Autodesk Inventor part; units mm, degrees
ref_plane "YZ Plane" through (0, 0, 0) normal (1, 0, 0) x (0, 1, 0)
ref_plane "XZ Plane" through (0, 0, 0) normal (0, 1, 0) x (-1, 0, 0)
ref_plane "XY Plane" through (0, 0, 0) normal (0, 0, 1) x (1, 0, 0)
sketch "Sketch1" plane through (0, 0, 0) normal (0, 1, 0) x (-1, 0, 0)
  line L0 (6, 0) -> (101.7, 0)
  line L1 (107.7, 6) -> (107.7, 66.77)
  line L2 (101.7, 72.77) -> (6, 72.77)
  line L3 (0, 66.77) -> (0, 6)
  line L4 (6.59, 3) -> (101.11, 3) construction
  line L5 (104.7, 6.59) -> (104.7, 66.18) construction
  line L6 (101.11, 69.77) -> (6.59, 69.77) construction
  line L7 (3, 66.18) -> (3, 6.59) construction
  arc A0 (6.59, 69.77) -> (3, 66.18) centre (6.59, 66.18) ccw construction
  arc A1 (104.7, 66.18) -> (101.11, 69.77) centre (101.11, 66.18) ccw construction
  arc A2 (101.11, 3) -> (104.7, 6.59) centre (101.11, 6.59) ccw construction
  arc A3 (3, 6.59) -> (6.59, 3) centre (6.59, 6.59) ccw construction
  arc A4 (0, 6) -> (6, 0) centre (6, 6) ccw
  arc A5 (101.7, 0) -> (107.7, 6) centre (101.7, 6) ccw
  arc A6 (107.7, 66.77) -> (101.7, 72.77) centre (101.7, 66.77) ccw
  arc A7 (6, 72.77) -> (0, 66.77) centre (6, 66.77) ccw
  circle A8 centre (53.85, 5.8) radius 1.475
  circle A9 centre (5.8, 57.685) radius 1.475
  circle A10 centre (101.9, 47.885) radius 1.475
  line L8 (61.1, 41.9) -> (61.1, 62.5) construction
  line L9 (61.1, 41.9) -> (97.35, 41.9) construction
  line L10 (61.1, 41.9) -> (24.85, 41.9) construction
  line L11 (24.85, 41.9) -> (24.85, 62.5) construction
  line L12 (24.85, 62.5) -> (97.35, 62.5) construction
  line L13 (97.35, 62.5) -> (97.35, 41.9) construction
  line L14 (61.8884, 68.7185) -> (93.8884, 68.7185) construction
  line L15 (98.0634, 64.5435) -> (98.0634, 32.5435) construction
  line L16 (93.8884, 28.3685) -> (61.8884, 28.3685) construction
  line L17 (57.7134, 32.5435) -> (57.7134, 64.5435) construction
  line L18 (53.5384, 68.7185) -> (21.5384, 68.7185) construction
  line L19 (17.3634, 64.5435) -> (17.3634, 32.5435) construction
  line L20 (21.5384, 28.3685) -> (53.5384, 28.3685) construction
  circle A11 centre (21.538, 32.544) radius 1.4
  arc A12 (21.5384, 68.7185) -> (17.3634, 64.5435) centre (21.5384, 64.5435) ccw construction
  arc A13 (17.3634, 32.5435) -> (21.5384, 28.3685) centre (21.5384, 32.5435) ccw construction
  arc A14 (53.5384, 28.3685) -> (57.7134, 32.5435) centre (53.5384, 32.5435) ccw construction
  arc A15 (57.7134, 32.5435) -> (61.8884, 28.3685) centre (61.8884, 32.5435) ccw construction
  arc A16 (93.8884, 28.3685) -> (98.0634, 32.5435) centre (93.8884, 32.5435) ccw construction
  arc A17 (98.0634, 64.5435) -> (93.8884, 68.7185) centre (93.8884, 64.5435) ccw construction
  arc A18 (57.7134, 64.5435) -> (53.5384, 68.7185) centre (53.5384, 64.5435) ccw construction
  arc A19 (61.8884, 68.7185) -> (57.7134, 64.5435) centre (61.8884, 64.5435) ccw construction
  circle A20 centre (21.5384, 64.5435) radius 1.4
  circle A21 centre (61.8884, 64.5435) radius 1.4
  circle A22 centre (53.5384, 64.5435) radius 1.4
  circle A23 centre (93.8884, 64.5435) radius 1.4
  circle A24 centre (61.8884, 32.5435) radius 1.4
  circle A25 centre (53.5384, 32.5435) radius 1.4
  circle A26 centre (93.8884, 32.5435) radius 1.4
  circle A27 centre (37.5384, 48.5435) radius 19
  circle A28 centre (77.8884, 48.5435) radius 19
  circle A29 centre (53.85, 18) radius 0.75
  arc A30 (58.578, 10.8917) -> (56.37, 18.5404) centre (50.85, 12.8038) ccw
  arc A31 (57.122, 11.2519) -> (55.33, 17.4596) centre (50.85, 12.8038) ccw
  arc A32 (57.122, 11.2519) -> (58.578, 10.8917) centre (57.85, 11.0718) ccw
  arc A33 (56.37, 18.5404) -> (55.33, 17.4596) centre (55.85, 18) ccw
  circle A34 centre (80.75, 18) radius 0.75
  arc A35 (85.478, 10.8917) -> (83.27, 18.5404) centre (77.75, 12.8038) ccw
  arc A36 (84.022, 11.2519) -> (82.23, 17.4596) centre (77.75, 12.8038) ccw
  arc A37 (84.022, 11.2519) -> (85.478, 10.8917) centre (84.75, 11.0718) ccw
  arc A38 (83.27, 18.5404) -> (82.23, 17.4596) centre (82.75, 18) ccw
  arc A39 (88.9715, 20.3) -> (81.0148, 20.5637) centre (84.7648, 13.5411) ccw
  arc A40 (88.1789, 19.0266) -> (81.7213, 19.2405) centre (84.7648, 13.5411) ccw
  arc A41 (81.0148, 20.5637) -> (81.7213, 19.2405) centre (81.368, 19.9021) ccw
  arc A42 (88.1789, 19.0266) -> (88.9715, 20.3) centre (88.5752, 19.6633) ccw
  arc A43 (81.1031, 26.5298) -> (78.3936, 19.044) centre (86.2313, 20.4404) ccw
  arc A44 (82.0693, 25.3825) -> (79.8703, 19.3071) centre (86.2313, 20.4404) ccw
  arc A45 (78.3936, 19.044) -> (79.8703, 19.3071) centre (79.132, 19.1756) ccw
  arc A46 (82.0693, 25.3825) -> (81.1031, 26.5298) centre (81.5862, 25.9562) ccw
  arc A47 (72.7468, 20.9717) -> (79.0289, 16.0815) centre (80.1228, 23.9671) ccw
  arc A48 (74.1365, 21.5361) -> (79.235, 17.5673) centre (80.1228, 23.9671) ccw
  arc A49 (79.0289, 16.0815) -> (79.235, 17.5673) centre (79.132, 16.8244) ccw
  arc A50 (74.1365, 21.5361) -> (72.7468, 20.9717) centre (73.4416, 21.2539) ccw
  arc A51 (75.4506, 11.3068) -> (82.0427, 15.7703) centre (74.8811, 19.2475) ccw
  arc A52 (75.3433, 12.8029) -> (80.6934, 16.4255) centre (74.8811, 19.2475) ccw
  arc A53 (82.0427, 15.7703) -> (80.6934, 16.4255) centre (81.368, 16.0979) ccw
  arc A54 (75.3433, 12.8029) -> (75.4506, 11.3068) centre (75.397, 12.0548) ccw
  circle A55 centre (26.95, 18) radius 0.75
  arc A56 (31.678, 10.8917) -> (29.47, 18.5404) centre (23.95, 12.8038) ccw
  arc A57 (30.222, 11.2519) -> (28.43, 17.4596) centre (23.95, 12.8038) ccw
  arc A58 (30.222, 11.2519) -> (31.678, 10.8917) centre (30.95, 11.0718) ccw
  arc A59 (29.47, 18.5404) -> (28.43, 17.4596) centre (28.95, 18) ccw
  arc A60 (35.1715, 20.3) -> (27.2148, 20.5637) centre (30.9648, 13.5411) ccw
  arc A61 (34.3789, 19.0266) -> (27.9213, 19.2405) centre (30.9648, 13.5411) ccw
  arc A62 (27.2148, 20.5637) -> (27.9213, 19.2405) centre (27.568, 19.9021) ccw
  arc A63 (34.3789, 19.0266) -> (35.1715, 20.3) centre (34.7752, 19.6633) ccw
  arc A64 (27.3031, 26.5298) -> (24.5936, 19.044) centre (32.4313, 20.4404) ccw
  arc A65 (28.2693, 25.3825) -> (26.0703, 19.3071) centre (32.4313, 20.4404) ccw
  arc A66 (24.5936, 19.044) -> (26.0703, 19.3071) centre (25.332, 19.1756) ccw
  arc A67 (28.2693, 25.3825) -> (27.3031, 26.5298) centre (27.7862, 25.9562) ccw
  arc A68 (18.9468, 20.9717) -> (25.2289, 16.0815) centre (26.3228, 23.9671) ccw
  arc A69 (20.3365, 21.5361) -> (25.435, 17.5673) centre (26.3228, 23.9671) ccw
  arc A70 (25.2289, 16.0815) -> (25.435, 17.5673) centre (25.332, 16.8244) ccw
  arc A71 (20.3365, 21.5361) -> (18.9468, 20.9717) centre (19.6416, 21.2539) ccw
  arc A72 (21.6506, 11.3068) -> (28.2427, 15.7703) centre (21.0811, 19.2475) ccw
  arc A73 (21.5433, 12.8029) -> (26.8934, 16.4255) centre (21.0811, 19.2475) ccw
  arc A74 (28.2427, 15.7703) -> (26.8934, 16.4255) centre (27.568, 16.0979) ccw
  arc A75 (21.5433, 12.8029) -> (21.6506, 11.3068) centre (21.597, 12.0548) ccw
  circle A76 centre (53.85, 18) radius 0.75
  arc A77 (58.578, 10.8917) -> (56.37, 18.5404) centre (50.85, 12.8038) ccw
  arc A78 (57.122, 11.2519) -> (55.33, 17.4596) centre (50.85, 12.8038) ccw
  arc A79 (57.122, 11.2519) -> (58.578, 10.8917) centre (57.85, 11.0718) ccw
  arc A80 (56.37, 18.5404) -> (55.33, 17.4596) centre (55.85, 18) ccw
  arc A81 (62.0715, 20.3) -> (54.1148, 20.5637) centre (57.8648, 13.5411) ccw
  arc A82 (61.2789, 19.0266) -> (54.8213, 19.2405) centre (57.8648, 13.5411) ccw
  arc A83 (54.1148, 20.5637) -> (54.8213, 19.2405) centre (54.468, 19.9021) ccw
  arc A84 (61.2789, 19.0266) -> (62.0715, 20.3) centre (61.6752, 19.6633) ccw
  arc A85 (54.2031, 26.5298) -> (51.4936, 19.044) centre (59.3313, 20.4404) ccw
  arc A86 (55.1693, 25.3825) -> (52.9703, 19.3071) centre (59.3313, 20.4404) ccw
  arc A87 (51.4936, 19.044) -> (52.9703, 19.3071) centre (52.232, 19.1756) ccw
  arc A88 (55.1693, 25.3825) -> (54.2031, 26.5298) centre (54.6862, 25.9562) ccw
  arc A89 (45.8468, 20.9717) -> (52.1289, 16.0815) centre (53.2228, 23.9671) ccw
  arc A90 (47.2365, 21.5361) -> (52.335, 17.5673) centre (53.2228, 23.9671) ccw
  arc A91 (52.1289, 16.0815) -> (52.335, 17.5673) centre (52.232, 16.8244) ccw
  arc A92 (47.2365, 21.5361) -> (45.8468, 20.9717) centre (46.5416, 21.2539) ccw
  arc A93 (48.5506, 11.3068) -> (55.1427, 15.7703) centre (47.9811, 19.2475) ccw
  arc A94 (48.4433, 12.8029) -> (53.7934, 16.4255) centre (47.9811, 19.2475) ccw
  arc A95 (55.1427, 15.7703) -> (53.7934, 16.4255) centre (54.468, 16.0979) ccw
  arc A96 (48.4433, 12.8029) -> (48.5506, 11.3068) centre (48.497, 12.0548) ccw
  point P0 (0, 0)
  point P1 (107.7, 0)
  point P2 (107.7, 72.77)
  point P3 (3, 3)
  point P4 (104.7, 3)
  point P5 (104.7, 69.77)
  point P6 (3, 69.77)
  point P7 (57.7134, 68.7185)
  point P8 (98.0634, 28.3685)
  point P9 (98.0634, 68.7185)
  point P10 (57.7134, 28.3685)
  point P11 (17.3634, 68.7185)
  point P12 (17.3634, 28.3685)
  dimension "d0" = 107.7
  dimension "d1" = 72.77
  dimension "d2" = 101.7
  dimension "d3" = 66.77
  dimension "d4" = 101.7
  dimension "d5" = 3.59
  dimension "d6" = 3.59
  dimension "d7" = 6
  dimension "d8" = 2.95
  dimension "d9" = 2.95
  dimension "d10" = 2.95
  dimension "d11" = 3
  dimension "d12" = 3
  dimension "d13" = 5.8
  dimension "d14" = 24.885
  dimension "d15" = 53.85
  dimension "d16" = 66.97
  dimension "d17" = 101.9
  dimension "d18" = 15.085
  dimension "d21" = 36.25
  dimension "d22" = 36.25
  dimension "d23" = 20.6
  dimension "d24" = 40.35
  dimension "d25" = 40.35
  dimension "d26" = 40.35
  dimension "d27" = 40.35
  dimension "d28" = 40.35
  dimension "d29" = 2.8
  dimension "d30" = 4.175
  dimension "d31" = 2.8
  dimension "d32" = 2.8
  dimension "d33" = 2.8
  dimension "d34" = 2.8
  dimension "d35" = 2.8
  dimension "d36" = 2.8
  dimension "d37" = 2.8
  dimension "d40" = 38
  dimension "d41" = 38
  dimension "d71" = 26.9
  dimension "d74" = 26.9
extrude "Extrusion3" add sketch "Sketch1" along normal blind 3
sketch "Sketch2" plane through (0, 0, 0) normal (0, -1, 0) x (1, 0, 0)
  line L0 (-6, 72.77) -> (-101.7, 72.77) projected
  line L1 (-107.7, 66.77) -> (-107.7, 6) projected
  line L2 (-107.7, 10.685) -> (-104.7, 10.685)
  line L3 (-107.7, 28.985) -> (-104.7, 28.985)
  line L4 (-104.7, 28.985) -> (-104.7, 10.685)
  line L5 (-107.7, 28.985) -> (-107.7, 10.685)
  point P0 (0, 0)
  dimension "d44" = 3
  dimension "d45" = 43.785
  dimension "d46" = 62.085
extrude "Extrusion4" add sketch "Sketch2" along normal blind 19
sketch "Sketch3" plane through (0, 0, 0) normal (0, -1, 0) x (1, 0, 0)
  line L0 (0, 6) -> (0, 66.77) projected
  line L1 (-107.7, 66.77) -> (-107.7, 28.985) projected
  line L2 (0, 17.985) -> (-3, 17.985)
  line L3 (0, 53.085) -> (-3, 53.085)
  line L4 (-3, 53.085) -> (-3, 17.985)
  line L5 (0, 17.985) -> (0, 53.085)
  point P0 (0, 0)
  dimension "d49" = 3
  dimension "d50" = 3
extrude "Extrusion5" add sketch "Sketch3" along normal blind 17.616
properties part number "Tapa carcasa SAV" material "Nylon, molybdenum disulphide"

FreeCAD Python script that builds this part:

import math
import FreeCAD as App
import Part
import Sketcher

V = App.Vector


def add_polygon(sketch, points):
    """Adds a closed chain of lines whose ends are joined by coincident constraints."""
    first, n = sketch.GeometryCount, len(points)
    for a, b in zip(points, points[1:] + points[:1]):
        sketch.addGeometry(Part.LineSegment(App.Vector(*a, 0), App.Vector(*b, 0)), False)
    for i in range(n):
        sketch.addConstraint(Sketcher.Constraint("Coincident", first + i, 2, first + (i + 1) % n, 1))

doc = App.newDocument("Part")
body = doc.addObject("PartDesign::Body", "Body")

# Sketch on XZ plane
sketch1 = body.newObject("Sketcher::SketchObject", "Sketch")
sketch1.AttachmentSupport = (doc.getObject("XZ_Plane"), [""])
sketch1.MapMode = "FlatFace"
sketch1.addGeometry(Part.ArcOfCircle(Part.Circle(V(-6, 6, 0), V(0, 0, 1), 6), math.radians(-90), math.radians(0)), False)
sketch1.addGeometry(Part.LineSegment(V(-6, 0, 0), V(-101.7, 0, 0)), False)
sketch1.addGeometry(Part.ArcOfCircle(Part.Circle(V(-101.7, 6, 0), V(0, 0, 1), 6), math.radians(180), math.radians(270)), False)
sketch1.addGeometry(Part.LineSegment(V(-107.7, 6, 0), V(-107.7, 66.8, 0)), False)
sketch1.addGeometry(Part.ArcOfCircle(Part.Circle(V(-101.7, 66.8, 0), V(0, 0, 1), 6), math.radians(90), math.radians(180)), False)
sketch1.addGeometry(Part.LineSegment(V(-101.7, 72.8, 0), V(-6, 72.8, 0)), False)
sketch1.addGeometry(Part.ArcOfCircle(Part.Circle(V(-6, 66.8, 0), V(0, 0, 1), 6), math.radians(0), math.radians(90)), False)
sketch1.addGeometry(Part.LineSegment(V(0, 66.8, 0), V(0, 6, 0)), False)
sketch1.addGeometry(Part.ArcOfCircle(Part.Circle(V(-21.1, 19.2, 0), V(0, 0, 1), 8), math.radians(-154), math.radians(-94)), False)
sketch1.addGeometry(Part.ArcOfCircle(Part.Circle(V(-21.6, 12.1, 0), V(0, 0, 1), 0.8), math.radians(-94), math.radians(86)), False)
sketch1.addGeometry(Part.ArcOfCircle(Part.Circle(V(-21.1, 19.2, 0), V(0, 0, 1), 6.5), math.radians(-154), math.radians(-94)), False)
sketch1.addGeometry(Part.ArcOfCircle(Part.Circle(V(-27.6, 16.1, 0), V(0, 0, 1), 0.8), math.radians(26), math.radians(206)), False)
sketch1.addGeometry(Part.Circle(V(-53.9, 5.8, 0), V(0, 0, 1), 1.5), False)
sketch1.addGeometry(Part.ArcOfCircle(Part.Circle(V(-23.9, 12.8, 0), V(0, 0, 1), 8), math.radians(134), math.radians(194)), False)
sketch1.addGeometry(Part.ArcOfCircle(Part.Circle(V(-30.9, 11.1, 0), V(0, 0, 1), 0.7), math.radians(-166), math.radians(14)), False)
sketch1.addGeometry(Part.ArcOfCircle(Part.Circle(V(-23.9, 12.8, 0), V(0, 0, 1), 6.5), math.radians(134), math.radians(194)), False)
sketch1.addGeometry(Part.ArcOfCircle(Part.Circle(V(-28.9, 18, 0), V(0, 0, 1), 0.7), math.radians(-46), math.radians(134)), False)
sketch1.addGeometry(Part.Circle(V(-26.9, 18, 0), V(0, 0, 1), 0.8), False)
sketch1.addGeometry(Part.ArcOfCircle(Part.Circle(V(-48, 19.2, 0), V(0, 0, 1), 8), math.radians(-154), math.radians(-94)), False)
sketch1.addGeometry(Part.ArcOfCircle(Part.Circle(V(-48.5, 12.1, 0), V(0, 0, 1), 0.8), math.radians(-94), math.radians(86)), False)
sketch1.addGeometry(Part.ArcOfCircle(Part.Circle(V(-48, 19.2, 0), V(0, 0, 1), 6.5), math.radians(-154), math.radians(-94)), False)
sketch1.addGeometry(Part.ArcOfCircle(Part.Circle(V(-54.5, 16.1, 0), V(0, 0, 1), 0.8), math.radians(26), math.radians(206)), False)
sketch1.addGeometry(Part.Circle(V(-53.9, 18, 0), V(0, 0, 1), 0.8), False)
sketch1.addGeometry(Part.ArcOfCircle(Part.Circle(V(-26.3, 24, 0), V(0, 0, 1), 8), math.radians(-82), math.radians(-22)), False)
sketch1.addGeometry(Part.ArcOfCircle(Part.Circle(V(-19.6, 21.3, 0), V(0, 0, 1), 0.8), math.radians(-22), math.radians(158)), False)
sketch1.addGeometry(Part.ArcOfCircle(Part.Circle(V(-26.3, 24, 0), V(0, 0, 1), 6.5), math.radians(-82), math.radians(-22)), False)
sketch1.addGeometry(Part.ArcOfCircle(Part.Circle(V(-25.3, 16.8, 0), V(0, 0, 1), 0.8), math.radians(98), math.radians(278)), False)
sketch1.addGeometry(Part.ArcOfCircle(Part.Circle(V(-32.4, 20.4, 0), V(0, 0, 1), 8), math.radians(-10), math.radians(50)), False)
sketch1.addGeometry(Part.ArcOfCircle(Part.Circle(V(-27.8, 26, 0), V(0, 0, 1), 0.8), math.radians(50), math.radians(230)), False)
sketch1.addGeometry(Part.ArcOfCircle(Part.Circle(V(-32.4, 20.4, 0), V(0, 0, 1), 6.5), math.radians(-10), math.radians(50)), False)
sketch1.addGeometry(Part.ArcOfCircle(Part.Circle(V(-25.3, 19.2, 0), V(0, 0, 1), 0.8), math.radians(170), math.radians(350)), False)
sketch1.addGeometry(Part.Circle(V(-21.5, 32.5, 0), V(0, 0, 1), 1.4), False)
sketch1.addGeometry(Part.ArcOfCircle(Part.Circle(V(-31, 13.5, 0), V(0, 0, 1), 8), math.radians(62), math.radians(122)), False)
sketch1.addGeometry(Part.ArcOfCircle(Part.Circle(V(-34.8, 19.7, 0), V(0, 0, 1), 0.7), math.radians(122), math.radians(302)), False)
sketch1.addGeometry(Part.ArcOfCircle(Part.Circle(V(-31, 13.5, 0), V(0, 0, 1), 6.5), math.radians(62), math.radians(122)), False)
sketch1.addGeometry(Part.ArcOfCircle(Part.Circle(V(-27.6, 19.9, 0), V(0, 0, 1), 0.7), math.radians(-118), math.radians(62)), False)
sketch1.addGeometry(Part.ArcOfCircle(Part.Circle(V(-53.2, 24, 0), V(0, 0, 1), 8), math.radians(-82), math.radians(-22)), False)
sketch1.addGeometry(Part.ArcOfCircle(Part.Circle(V(-46.5, 21.3, 0), V(0, 0, 1), 0.8), math.radians(-22), math.radians(158)), False)
sketch1.addGeometry(Part.ArcOfCircle(Part.Circle(V(-53.2, 24, 0), V(0, 0, 1), 6.5), math.radians(-82), math.radians(-22)), False)
sketch1.addGeometry(Part.ArcOfCircle(Part.Circle(V(-52.2, 16.8, 0), V(0, 0, 1), 0.8), math.radians(98), math.radians(278)), False)
sketch1.addGeometry(Part.ArcOfCircle(Part.Circle(V(-59.3, 20.4, 0), V(0, 0, 1), 8), math.radians(-10), math.radians(50)), False)
sketch1.addGeometry(Part.ArcOfCircle(Part.Circle(V(-54.7, 26, 0), V(0, 0, 1), 0.8), math.radians(50), math.radians(230)), False)
sketch1.addGeometry(Part.ArcOfCircle(Part.Circle(V(-59.3, 20.4, 0), V(0, 0, 1), 6.5), math.radians(-10), math.radians(50)), False)
sketch1.addGeometry(Part.ArcOfCircle(Part.Circle(V(-52.2, 19.2, 0), V(0, 0, 1), 0.8), math.radians(170), math.radians(350)), False)
sketch1.addGeometry(Part.Circle(V(-53.5, 32.5, 0), V(0, 0, 1), 1.4), False)
sketch1.addGeometry(Part.ArcOfCircle(Part.Circle(V(-50.9, 12.8, 0), V(0, 0, 1), 8), math.radians(134), math.radians(194)), False)
sketch1.addGeometry(Part.ArcOfCircle(Part.Circle(V(-57.9, 11.1, 0), V(0, 0, 1), 0.7), math.radians(-166), math.radians(14)), False)
sketch1.addGeometry(Part.ArcOfCircle(Part.Circle(V(-50.9, 12.8, 0), V(0, 0, 1), 6.5), math.radians(134), math.radians(194)), False)
sketch1.addGeometry(Part.ArcOfCircle(Part.Circle(V(-55.9, 18, 0), V(0, 0, 1), 0.7), math.radians(-46), math.radians(134)), False)
sketch1.addGeometry(Part.ArcOfCircle(Part.Circle(V(-74.9, 19.2, 0), V(0, 0, 1), 8), math.radians(-154), math.radians(-94)), False)
sketch1.addGeometry(Part.ArcOfCircle(Part.Circle(V(-75.4, 12.1, 0), V(0, 0, 1), 0.8), math.radians(-94), math.radians(86)), False)
sketch1.addGeometry(Part.ArcOfCircle(Part.Circle(V(-74.9, 19.2, 0), V(0, 0, 1), 6.5), math.radians(-154), math.radians(-94)), False)
sketch1.addGeometry(Part.ArcOfCircle(Part.Circle(V(-81.4, 16.1, 0), V(0, 0, 1), 0.8), math.radians(26), math.radians(206)), False)
sketch1.addGeometry(Part.Circle(V(-80.8, 18, 0), V(0, 0, 1), 0.8), False)
sketch1.addGeometry(Part.ArcOfCircle(Part.Circle(V(-77.8, 12.8, 0), V(0, 0, 1), 8), math.radians(134), math.radians(194)), False)
sketch1.addGeometry(Part.ArcOfCircle(Part.Circle(V(-84.8, 11.1, 0), V(0, 0, 1), 0.7), math.radians(-166), math.radians(14)), False)
sketch1.addGeometry(Part.ArcOfCircle(Part.Circle(V(-77.8, 12.8, 0), V(0, 0, 1), 6.5), math.radians(134), math.radians(194)), False)
sketch1.addGeometry(Part.ArcOfCircle(Part.Circle(V(-82.8, 18, 0), V(0, 0, 1), 0.7), math.radians(-46), math.radians(134)), False)
sketch1.addGeometry(Part.ArcOfCircle(Part.Circle(V(-57.9, 13.5, 0), V(0, 0, 1), 8), math.radians(62), math.radians(122)), False)
sketch1.addGeometry(Part.ArcOfCircle(Part.Circle(V(-61.7, 19.7, 0), V(0, 0, 1), 0.7), math.radians(122), math.radians(302)), False)
sketch1.addGeometry(Part.ArcOfCircle(Part.Circle(V(-57.9, 13.5, 0), V(0, 0, 1), 6.5), math.radians(62), math.radians(122)), False)
sketch1.addGeometry(Part.ArcOfCircle(Part.Circle(V(-54.5, 19.9, 0), V(0, 0, 1), 0.7), math.radians(-118), math.radians(62)), False)
sketch1.addGeometry(Part.ArcOfCircle(Part.Circle(V(-80.1, 24, 0), V(0, 0, 1), 8), math.radians(-82), math.radians(-22)), False)
sketch1.addGeometry(Part.ArcOfCircle(Part.Circle(V(-73.4, 21.3, 0), V(0, 0, 1), 0.8), math.radians(-22), math.radians(158)), False)
sketch1.addGeometry(Part.ArcOfCircle(Part.Circle(V(-80.1, 24, 0), V(0, 0, 1), 6.5), math.radians(-82), math.radians(-22)), False)
sketch1.addGeometry(Part.ArcOfCircle(Part.Circle(V(-79.1, 16.8, 0), V(0, 0, 1), 0.8), math.radians(98), math.radians(278)), False)
sketch1.addGeometry(Part.ArcOfCircle(Part.Circle(V(-86.2, 20.4, 0), V(0, 0, 1), 8), math.radians(-10), math.radians(50)), False)
sketch1.addGeometry(Part.ArcOfCircle(Part.Circle(V(-81.6, 26, 0), V(0, 0, 1), 0.8), math.radians(50), math.radians(230)), False)
sketch1.addGeometry(Part.ArcOfCircle(Part.Circle(V(-86.2, 20.4, 0), V(0, 0, 1), 6.5), math.radians(-10), math.radians(50)), False)
sketch1.addGeometry(Part.ArcOfCircle(Part.Circle(V(-79.1, 19.2, 0), V(0, 0, 1), 0.8), math.radians(170), math.radians(350)), False)
sketch1.addGeometry(Part.Circle(V(-61.9, 32.5, 0), V(0, 0, 1), 1.4), False)
sketch1.addGeometry(Part.ArcOfCircle(Part.Circle(V(-84.8, 13.5, 0), V(0, 0, 1), 8), math.radians(62), math.radians(122)), False)
sketch1.addGeometry(Part.ArcOfCircle(Part.Circle(V(-88.6, 19.7, 0), V(0, 0, 1), 0.7), math.radians(122), math.radians(302)), False)
sketch1.addGeometry(Part.ArcOfCircle(Part.Circle(V(-84.8, 13.5, 0), V(0, 0, 1), 6.5), math.radians(62), math.radians(122)), False)
sketch1.addGeometry(Part.ArcOfCircle(Part.Circle(V(-81.4, 19.9, 0), V(0, 0, 1), 0.7), math.radians(-118), math.radians(62)), False)
sketch1.addGeometry(Part.Circle(V(-93.9, 32.5, 0), V(0, 0, 1), 1.4), False)
sketch1.addGeometry(Part.Circle(V(-37.5, 48.5, 0), V(0, 0, 1), 19), False)
sketch1.addGeometry(Part.Circle(V(-5.8, 57.7, 0), V(0, 0, 1), 1.5), False)
sketch1.addGeometry(Part.Circle(V(-21.5, 64.5, 0), V(0, 0, 1), 1.4), False)
sketch1.addGeometry(Part.Circle(V(-53.5, 64.5, 0), V(0, 0, 1), 1.4), False)
sketch1.addGeometry(Part.Circle(V(-77.9, 48.5, 0), V(0, 0, 1), 19), False)
sketch1.addGeometry(Part.Circle(V(-101.9, 47.9, 0), V(0, 0, 1), 1.5), False)
sketch1.addGeometry(Part.Circle(V(-61.9, 64.5, 0), V(0, 0, 1), 1.4), False)
sketch1.addGeometry(Part.Circle(V(-93.9, 64.5, 0), V(0, 0, 1), 1.4), False)
sketch1.addConstraint(Sketcher.Constraint("Tangent", 0, 1, 1, 1))
sketch1.addConstraint(Sketcher.Constraint("Tangent", 1, 2, 2, 2))
sketch1.addConstraint(Sketcher.Constraint("Tangent", 2, 1, 3, 1))
sketch1.addConstraint(Sketcher.Constraint("Tangent", 3, 2, 4, 2))
sketch1.addConstraint(Sketcher.Constraint("Tangent", 4, 1, 5, 1))
sketch1.addConstraint(Sketcher.Constraint("Tangent", 5, 2, 6, 2))
sketch1.addConstraint(Sketcher.Constraint("Tangent", 6, 1, 7, 1))
sketch1.addConstraint(Sketcher.Constraint("Tangent", 7, 2, 0, 2))
sketch1.addConstraint(Sketcher.Constraint("Tangent", 8, 2, 9, 1))
sketch1.addConstraint(Sketcher.Constraint("Tangent", 9, 2, 10, 2))
sketch1.addConstraint(Sketcher.Constraint("Tangent", 10, 1, 11, 1))
sketch1.addConstraint(Sketcher.Constraint("Tangent", 11, 2, 8, 1))
sketch1.addConstraint(Sketcher.Constraint("Tangent", 13, 2, 14, 1))
sketch1.addConstraint(Sketcher.Constraint("Tangent", 14, 2, 15, 2))
sketch1.addConstraint(Sketcher.Constraint("Tangent", 15, 1, 16, 1))
sketch1.addConstraint(Sketcher.Constraint("Tangent", 16, 2, 13, 1))
sketch1.addConstraint(Sketcher.Constraint("Tangent", 18, 2, 19, 1))
sketch1.addConstraint(Sketcher.Constraint("Tangent", 19, 2, 20, 2))
sketch1.addConstraint(Sketcher.Constraint("Tangent", 20, 1, 21, 1))
sketch1.addConstraint(Sketcher.Constraint("Tangent", 21, 2, 18, 1))
sketch1.addConstraint(Sketcher.Constraint("Tangent", 23, 2, 24, 1))
sketch1.addConstraint(Sketcher.Constraint("Tangent", 24, 2, 25, 2))
sketch1.addConstraint(Sketcher.Constraint("Tangent", 25, 1, 26, 1))
sketch1.addConstraint(Sketcher.Constraint("Tangent", 26, 2, 23, 1))
sketch1.addConstraint(Sketcher.Constraint("Tangent", 27, 2, 28, 1))
sketch1.addConstraint(Sketcher.Constraint("Tangent", 28, 2, 29, 2))
sketch1.addConstraint(Sketcher.Constraint("Tangent", 29, 1, 30, 1))
sketch1.addConstraint(Sketcher.Constraint("Tangent", 30, 2, 27, 1))
sketch1.addConstraint(Sketcher.Constraint("Tangent", 32, 2, 33, 1))
sketch1.addConstraint(Sketcher.Constraint("Tangent", 33, 2, 34, 2))
sketch1.addConstraint(Sketcher.Constraint("Tangent", 34, 1, 35, 1))
sketch1.addConstraint(Sketcher.Constraint("Tangent", 35, 2, 32, 1))
sketch1.addConstraint(Sketcher.Constraint("Tangent", 36, 2, 37, 1))
sketch1.addConstraint(Sketcher.Constraint("Tangent", 37, 2, 38, 2))
sketch1.addConstraint(Sketcher.Constraint("Tangent", 38, 1, 39, 1))
sketch1.addConstraint(Sketcher.Constraint("Tangent", 39, 2, 36, 1))
sketch1.addConstraint(Sketcher.Constraint("Tangent", 40, 2, 41, 1))
sketch1.addConstraint(Sketcher.Constraint("Tangent", 41, 2, 42, 2))
sketch1.addConstraint(Sketcher.Constraint("Tangent", 42, 1, 43, 1))
sketch1.addConstraint(Sketcher.Constraint("Tangent", 43, 2, 40, 1))
sketch1.addConstraint(Sketcher.Constraint("Tangent", 45, 2, 46, 1))
sketch1.addConstraint(Sketcher.Constraint("Tangent", 46, 2, 47, 2))
sketch1.addConstraint(Sketcher.Constraint("Tangent", 47, 1, 48, 1))
sketch1.addConstraint(Sketcher.Constraint("Tangent", 48, 2, 45, 1))
sketch1.addConstraint(Sketcher.Constraint("Tangent", 49, 2, 50, 1))
sketch1.addConstraint(Sketcher.Constraint("Tangent", 50, 2, 51, 2))
sketch1.addConstraint(Sketcher.Constraint("Tangent", 51, 1, 52, 1))
sketch1.addConstraint(Sketcher.Constraint("Tangent", 52, 2, 49, 1))
sketch1.addConstraint(Sketcher.Constraint("Tangent", 54, 2, 55, 1))
sketch1.addConstraint(Sketcher.Constraint("Tangent", 55, 2, 56, 2))
sketch1.addConstraint(Sketcher.Constraint("Tangent", 56, 1, 57, 1))
sketch1.addConstraint(Sketcher.Constraint("Tangent", 57, 2, 54, 1))
sketch1.addConstraint(Sketcher.Constraint("Tangent", 58, 2, 59, 1))
sketch1.addConstraint(Sketcher.Constraint("Tangent", 59, 2, 60, 2))
sketch1.addConstraint(Sketcher.Constraint("Tangent", 60, 1, 61, 1))
sketch1.addConstraint(Sketcher.Constraint("Tangent", 61, 2, 58, 1))
sketch1.addConstraint(Sketcher.Constraint("Tangent", 62, 2, 63, 1))
sketch1.addConstraint(Sketcher.Constraint("Tangent", 63, 2, 64, 2))
sketch1.addConstraint(Sketcher.Constraint("Tangent", 64, 1, 65, 1))
sketch1.addConstraint(Sketcher.Constraint("Tangent", 65, 2, 62, 1))
sketch1.addConstraint(Sketcher.Constraint("Tangent", 66, 2, 67, 1))
sketch1.addConstraint(Sketcher.Constraint("Tangent", 67, 2, 68, 2))
sketch1.addConstraint(Sketcher.Constraint("Tangent", 68, 1, 69, 1))
sketch1.addConstraint(Sketcher.Constraint("Tangent", 69, 2, 66, 1))
sketch1.addConstraint(Sketcher.Constraint("Tangent", 71, 2, 72, 1))
sketch1.addConstraint(Sketcher.Constraint("Tangent", 72, 2, 73, 2))
sketch1.addConstraint(Sketcher.Constraint("Tangent", 73, 1, 74, 1))
sketch1.addConstraint(Sketcher.Constraint("Tangent", 74, 2, 71, 1))
sketch1.addConstraint(Sketcher.Constraint("Horizontal", 1))
sketch1.addConstraint(Sketcher.Constraint("Vertical", 3))
sketch1.addConstraint(Sketcher.Constraint("Horizontal", 5))
sketch1.addConstraint(Sketcher.Constraint("Vertical", 7))
sketch1.addConstraint(Sketcher.Constraint("Coincident", 10, 3, 8, 3))
sketch1.addConstraint(Sketcher.Constraint("Coincident", 15, 3, 13, 3))
sketch1.addConstraint(Sketcher.Constraint("Coincident", 20, 3, 18, 3))
sketch1.addConstraint(Sketcher.Constraint("Coincident", 25, 3, 23, 3))
sketch1.addConstraint(Sketcher.Constraint("Coincident", 29, 3, 27, 3))
sketch1.addConstraint(Sketcher.Constraint("Coincident", 34, 3, 32, 3))
sketch1.addConstraint(Sketcher.Constraint("Coincident", 38, 3, 36, 3))
sketch1.addConstraint(Sketcher.Constraint("Coincident", 42, 3, 40, 3))
sketch1.addConstraint(Sketcher.Constraint("Coincident", 47, 3, 45, 3))
sketch1.addConstraint(Sketcher.Constraint("Coincident", 51, 3, 49, 3))
sketch1.addConstraint(Sketcher.Constraint("Coincident", 56, 3, 54, 3))
sketch1.addConstraint(Sketcher.Constraint("Coincident", 60, 3, 58, 3))
sketch1.addConstraint(Sketcher.Constraint("Coincident", 64, 3, 62, 3))
sketch1.addConstraint(Sketcher.Constraint("Coincident", 68, 3, 66, 3))
sketch1.addConstraint(Sketcher.Constraint("Coincident", 73, 3, 71, 3))
sketch1.addConstraint(Sketcher.Constraint("Equal", 0, 2))
sketch1.addConstraint(Sketcher.Constraint("Equal", 2, 4))
sketch1.addConstraint(Sketcher.Constraint("Equal", 4, 6))
sketch1.addConstraint(Sketcher.Constraint("Equal", 8, 13))
sketch1.addConstraint(Sketcher.Constraint("Equal", 11, 14))
sketch1.addConstraint(Sketcher.Constraint("Equal", 16, 17))
sketch1.addConstraint(Sketcher.Constraint("Equal", 13, 18))
sketch1.addConstraint(Sketcher.Constraint("Equal", 17, 19))
sketch1.addConstraint(Sketcher.Constraint("Equal", 21, 22))
sketch1.addConstraint(Sketcher.Constraint("Equal", 18, 23))
sketch1.addConstraint(Sketcher.Constraint("Equal", 22, 24))
sketch1.addConstraint(Sketcher.Constraint("Equal", 23, 27))
sketch1.addConstraint(Sketcher.Constraint("Equal", 26, 28))
sketch1.addConstraint(Sketcher.Constraint("Equal", 27, 32))
sketch1.addConstraint(Sketcher.Constraint("Equal", 30, 33))
sketch1.addConstraint(Sketcher.Constraint("Equal", 32, 36))
sketch1.addConstraint(Sketcher.Constraint("Equal", 35, 37))
sketch1.addConstraint(Sketcher.Constraint("Equal", 36, 40))
sketch1.addConstraint(Sketcher.Constraint("Equal", 39, 41))
sketch1.addConstraint(Sketcher.Constraint("Equal", 31, 44))
sketch1.addConstraint(Sketcher.Constraint("Equal", 40, 45))
sketch1.addConstraint(Sketcher.Constraint("Equal", 43, 46))
sketch1.addConstraint(Sketcher.Constraint("Equal", 45, 49))
sketch1.addConstraint(Sketcher.Constraint("Equal", 48, 50))
sketch1.addConstraint(Sketcher.Constraint("Equal", 52, 53))
sketch1.addConstraint(Sketcher.Constraint("Equal", 49, 54))
sketch1.addConstraint(Sketcher.Constraint("Equal", 53, 55))
sketch1.addConstraint(Sketcher.Constraint("Equal", 54, 58))
sketch1.addConstraint(Sketcher.Constraint("Equal", 57, 59))
sketch1.addConstraint(Sketcher.Constraint("Equal", 58, 62))
sketch1.addConstraint(Sketcher.Constraint("Equal", 61, 63))
sketch1.addConstraint(Sketcher.Constraint("Equal", 62, 66))
sketch1.addConstraint(Sketcher.Constraint("Equal", 65, 67))
sketch1.addConstraint(Sketcher.Constraint("Equal", 44, 70))
sketch1.addConstraint(Sketcher.Constraint("Equal", 66, 71))
sketch1.addConstraint(Sketcher.Constraint("Equal", 69, 72))
sketch1.addConstraint(Sketcher.Constraint("Equal", 70, 75))
sketch1.addConstraint(Sketcher.Constraint("Equal", 12, 77))
sketch1.addConstraint(Sketcher.Constraint("Equal", 75, 78))
sketch1.addConstraint(Sketcher.Constraint("Equal", 78, 79))
sketch1.addConstraint(Sketcher.Constraint("Equal", 76, 80))
sketch1.addConstraint(Sketcher.Constraint("Equal", 77, 81))
sketch1.addConstraint(Sketcher.Constraint("Equal", 79, 82))
sketch1.addConstraint(Sketcher.Constraint("Equal", 82, 83))
sketch1.addConstraint(Sketcher.Constraint("PointOnObject", 0, 1, -1))
sketch1.addConstraint(Sketcher.Constraint("PointOnObject", 6, 1, -2))
sketch1.addConstraint(Sketcher.Constraint("Horizontal", 16, 3, 17, 3))
sketch1.addConstraint(Sketcher.Constraint("Horizontal", 10, 3, 18, 3))
sketch1.addConstraint(Sketcher.Constraint("Horizontal", 9, 3, 19, 3))
sketch1.addConstraint(Sketcher.Constraint("Horizontal", 11, 3, 21, 3))
sketch1.addConstraint(Sketcher.Constraint("Horizontal", 17, 3, 22, 3))
sketch1.addConstraint(Sketcher.Constraint("Horizontal", 25, 3, 36, 3))
sketch1.addConstraint(Sketcher.Constraint("Horizontal", 24, 3, 37, 3))
sketch1.addConstraint(Sketcher.Constraint("Horizontal", 26, 3, 39, 3))
sketch1.addConstraint(Sketcher.Constraint("Horizontal", 29, 3, 40, 3))
sketch1.addConstraint(Sketcher.Constraint("Horizontal", 28, 3, 41, 3))
sketch1.addConstraint(Sketcher.Constraint("Horizontal", 30, 3, 43, 3))
sketch1.addConstraint(Sketcher.Constraint("Horizontal", 15, 3, 45, 3))
sketch1.addConstraint(Sketcher.Constraint("Horizontal", 14, 3, 46, 3))
sketch1.addConstraint(Sketcher.Constraint("Horizontal", 22, 3, 48, 3))
sketch1.addConstraint(Sketcher.Constraint("Horizontal", 20, 3, 49, 3))
sketch1.addConstraint(Sketcher.Constraint("Horizontal", 19, 3, 50, 3))
sketch1.addConstraint(Sketcher.Constraint("Horizontal", 21, 3, 52, 3))
sketch1.addConstraint(Sketcher.Constraint("Horizontal", 48, 3, 53, 3))
sketch1.addConstraint(Sketcher.Constraint("Horizontal", 47, 3, 54, 3))
sketch1.addConstraint(Sketcher.Constraint("Horizontal", 46, 3, 55, 3))
sketch1.addConstraint(Sketcher.Constraint("Horizontal", 53, 3, 57, 3))
sketch1.addConstraint(Sketcher.Constraint("Horizontal", 34, 3, 58, 3))
sketch1.addConstraint(Sketcher.Constraint("Horizontal", 33, 3, 59, 3))
sketch1.addConstraint(Sketcher.Constraint("Horizontal", 35, 3, 61, 3))
sketch1.addConstraint(Sketcher.Constraint("Horizontal", 38, 3, 62, 3))
sketch1.addConstraint(Sketcher.Constraint("Horizontal", 37, 3, 63, 3))
sketch1.addConstraint(Sketcher.Constraint("Horizontal", 39, 3, 65, 3))
sketch1.addConstraint(Sketcher.Constraint("Horizontal", 42, 3, 66, 3))
sketch1.addConstraint(Sketcher.Constraint("Horizontal", 41, 3, 67, 3))
sketch1.addConstraint(Sketcher.Constraint("Horizontal", 43, 3, 69, 3))
sketch1.addConstraint(Sketcher.Constraint("Horizontal", 44, 3, 70, 3))
sketch1.addConstraint(Sketcher.Constraint("Horizontal", 60, 3, 71, 3))
sketch1.addConstraint(Sketcher.Constraint("Horizontal", 59, 3, 72, 3))
sketch1.addConstraint(Sketcher.Constraint("Horizontal", 61, 3, 74, 3))
sketch1.addConstraint(Sketcher.Constraint("Horizontal", 70, 3, 75, 3))
sketch1.addConstraint(Sketcher.Constraint("Horizontal", 78, 3, 79, 3))
sketch1.addConstraint(Sketcher.Constraint("Horizontal", 76, 3, 80, 3))
sketch1.addConstraint(Sketcher.Constraint("Horizontal", 79, 3, 82, 3))
sketch1.addConstraint(Sketcher.Constraint("Horizontal", 82, 3, 83, 3))
sketch1.addConstraint(Sketcher.Constraint("Vertical", 12, 3, 22, 3))
sketch1.addConstraint(Sketcher.Constraint("Vertical", 26, 3, 30, 3))
sketch1.addConstraint(Sketcher.Constraint("Vertical", 11, 3, 35, 3))
sketch1.addConstraint(Sketcher.Constraint("Vertical", 39, 3, 43, 3))
sketch1.addConstraint(Sketcher.Constraint("Vertical", 21, 3, 61, 3))
sketch1.addConstraint(Sketcher.Constraint("Vertical", 65, 3, 69, 3))
sketch1.addConstraint(Sketcher.Constraint("Vertical", 52, 3, 74, 3))
sketch1.addConstraint(Sketcher.Constraint("Vertical", 44, 3, 79, 3))
sketch1.addConstraint(Sketcher.Constraint("Vertical", 70, 3, 82, 3))
sketch1.addConstraint(Sketcher.Constraint("Vertical", 75, 3, 83, 3))
sketch1.addConstraint(Sketcher.Constraint("Diameter", 76, 38.0))
sketch1.addConstraint(Sketcher.Constraint("Radius", 0, 6.0))
sketch1.addConstraint(Sketcher.Constraint("Diameter", 31, 2.8))
sketch1.addConstraint(Sketcher.Constraint("Diameter", 12, 2.95))
sketch1.addConstraint(Sketcher.Constraint("Diameter", 17, 1.5))
sketch1.addConstraint(Sketcher.Constraint("DistanceX", 2, 3, -1, 1, 101.7))
sketch1.addConstraint(Sketcher.Constraint("DistanceY", -1, 1, 12, 3, 5.8))
sketch1.addConstraint(Sketcher.Constraint("DistanceX", 77, 3, -1, 1, 5.8))
sketch1.addConstraint(Sketcher.Constraint("DistanceX", 81, 3, -1, 1, 101.9))
sketch1.addConstraint(Sketcher.Constraint("DistanceY", -1, 1, 4, 3, 66.77))
sketch1.addConstraint(Sketcher.Constraint("DistanceX", 12, 3, -1, 1, 53.85))
sketch1.addConstraint(Sketcher.Constraint("DistanceY", -1, 1, 16, 3, 18.0))
sketch1.addConstraint(Sketcher.Constraint("Radius", 8, 7.961))
sketch1.addConstraint(Sketcher.Constraint("DistanceY", -1, 1, 32, 2, 20.3))
sketch1.addConstraint(Sketcher.Constraint("DistanceX", 13, 3, -1, 1, 23.95))
sketch1.addConstraint(Sketcher.Constraint("DistanceX", 14, 3, -1, 1, 30.95))
sketch1.addConstraint(Sketcher.Constraint("DistanceX", 16, 3, -1, 1, 28.95))
sketch1.addConstraint(Sketcher.Constraint("DistanceX", 17, 3, -1, 1, 26.95))
sketch1.addConstraint(Sketcher.Constraint("DistanceX", 45, 3, -1, 1, 50.85))
sketch1.addConstraint(Sketcher.Constraint("DistanceX", 53, 3, -1, 1, 80.75))
sketch1.addConstraint(Sketcher.Constraint("DistanceX", 54, 3, -1, 1, 77.75))
sketch1.addConstraint(Sketcher.Constraint("DistanceX", 8, 3, -1, 1, 21.081))
sketch1.addConstraint(Sketcher.Constraint("DistanceX", 9, 3, -1, 1, 21.597))
sketch1.addConstraint(Sketcher.Constraint("DistanceX", 11, 3, -1, 1, 27.568))
sketch1.addConstraint(Sketcher.Constraint("DistanceY", -1, 1, 11, 3, 16.098))
sketch1.addConstraint(Sketcher.Constraint("DistanceX", 18, 3, -1, 1, 47.981))
sketch1.addConstraint(Sketcher.Constraint("DistanceY", -1, 1, 23, 3, 23.967))
sketch1.addConstraint(Sketcher.Constraint("DistanceY", -1, 1, 24, 3, 21.254))
sketch1.addConstraint(Sketcher.Constraint("DistanceX", 26, 3, -1, 1, 25.332))
sketch1.addConstraint(Sketcher.Constraint("DistanceX", 31, 3, -1, 1, 21.538))
sketch1.addConstraint(Sketcher.Constraint("DistanceY", -1, 1, 31, 3, 32.544))
sketch1.addConstraint(Sketcher.Constraint("DistanceY", -1, 1, 32, 3, 13.541))
sketch1.addConstraint(Sketcher.Constraint("DistanceY", -1, 1, 35, 3, 19.902))
sketch1.addConstraint(Sketcher.Constraint("DistanceX", 39, 3, -1, 1, 52.232))
sketch1.addConstraint(Sketcher.Constraint("DistanceX", 49, 3, -1, 1, 74.881))
sketch1.addConstraint(Sketcher.Constraint("DistanceX", 65, 3, -1, 1, 79.132))
sketch1.addConstraint(Sketcher.Constraint("DistanceY", -1, 1, 77, 3, 57.685))
sketch1.addConstraint(Sketcher.Constraint("DistanceY", -1, 1, 81, 3, 47.885))
sketch1.addConstraint(Sketcher.Constraint("DistanceX", 25, 1, -1, 1, 25.435))
sketch1.addConstraint(Sketcher.Constraint("DistanceX", 27, 2, -1, 1, 27.303))
sketch1.addConstraint(Sketcher.Constraint("DistanceY", -1, 1, 29, 1, 19.307))
sketch1.addConstraint(Sketcher.Constraint("DistanceY", -1, 1, 30, 2, 19.044))
sketch1.addConstraint(Sketcher.Constraint("DistanceX", 44, 3, -1, 1, 53.5384))
sketch1.addConstraint(Sketcher.Constraint("DistanceY", -1, 1, 44, 3, 32.5435))
sketch1.addConstraint(Sketcher.Constraint("DistanceX", 70, 3, -1, 1, 61.8884))
sketch1.addConstraint(Sketcher.Constraint("DistanceX", 75, 3, -1, 1, 93.8884))
sketch1.addConstraint(Sketcher.Constraint("DistanceX", 76, 3, -1, 1, 37.5384))
sketch1.addConstraint(Sketcher.Constraint("DistanceY", -1, 1, 76, 3, 48.5435))
sketch1.addConstraint(Sketcher.Constraint("DistanceX", 78, 3, -1, 1, 21.5384))
sketch1.addConstraint(Sketcher.Constraint("DistanceY", -1, 1, 78, 3, 64.5435))
sketch1.addConstraint(Sketcher.Constraint("DistanceX", 80, 3, -1, 1, 77.8884))
pad1 = body.newObject("PartDesign::Pad", "Pad")
pad1.Profile = sketch1
pad1.Length = 3
pad1.Reversed = True

# Sketch on XZ plane
sketch2 = body.newObject("Sketcher::SketchObject", "Sketch001")
sketch2.AttachmentSupport = (doc.getObject("XZ_Plane"), [""])
sketch2.MapMode = "FlatFace"
add_polygon(sketch2, [(-104.7, 29), (-107.7, 29), (-107.7, 10.7), (-104.7, 10.7)])  # lines 0-3
sketch2.addConstraint(Sketcher.Constraint("Horizontal", 0))
sketch2.addConstraint(Sketcher.Constraint("Vertical", 1))
sketch2.addConstraint(Sketcher.Constraint("Horizontal", 2))
sketch2.addConstraint(Sketcher.Constraint("Vertical", 3))
sketch2.addConstraint(Sketcher.Constraint("DistanceX", 0, 2, 0, 1, 3.0))
sketch2.addConstraint(Sketcher.Constraint("DistanceY", 1, 2, 1, 1, 18.3))
sketch2.addConstraint(Sketcher.Constraint("DistanceX", 0, 2, -1, 1, 107.7))
sketch2.addConstraint(Sketcher.Constraint("DistanceY", -1, 1, 0, 2, 28.985))
pad2 = body.newObject("PartDesign::Pad", "Pad001")
pad2.Profile = sketch2
pad2.Length = 19

# Sketch on XZ plane
sketch3 = body.newObject("Sketcher::SketchObject", "Sketch002")
sketch3.AttachmentSupport = (doc.getObject("XZ_Plane"), [""])
sketch3.MapMode = "FlatFace"
add_polygon(sketch3, [(-3, 18), (0, 18), (0, 53.1), (-3, 53.1)])  # lines 0-3
sketch3.addConstraint(Sketcher.Constraint("Horizontal", 0))
sketch3.addConstraint(Sketcher.Constraint("Vertical", 1))
sketch3.addConstraint(Sketcher.Constraint("Horizontal", 2))
sketch3.addConstraint(Sketcher.Constraint("Vertical", 3))
sketch3.addConstraint(Sketcher.Constraint("PointOnObject", 0, 2, -2))
sketch3.addConstraint(Sketcher.Constraint("DistanceX", 0, 1, 0, 2, 3.0))
sketch3.addConstraint(Sketcher.Constraint("DistanceY", 1, 1, 1, 2, 35.1))
sketch3.addConstraint(Sketcher.Constraint("DistanceY", -1, 1, 0, 2, 17.985))
pad3 = body.newObject("PartDesign::Pad", "Pad002")
pad3.Profile = sketch3
pad3.Length = 17.616

doc.recompute()
